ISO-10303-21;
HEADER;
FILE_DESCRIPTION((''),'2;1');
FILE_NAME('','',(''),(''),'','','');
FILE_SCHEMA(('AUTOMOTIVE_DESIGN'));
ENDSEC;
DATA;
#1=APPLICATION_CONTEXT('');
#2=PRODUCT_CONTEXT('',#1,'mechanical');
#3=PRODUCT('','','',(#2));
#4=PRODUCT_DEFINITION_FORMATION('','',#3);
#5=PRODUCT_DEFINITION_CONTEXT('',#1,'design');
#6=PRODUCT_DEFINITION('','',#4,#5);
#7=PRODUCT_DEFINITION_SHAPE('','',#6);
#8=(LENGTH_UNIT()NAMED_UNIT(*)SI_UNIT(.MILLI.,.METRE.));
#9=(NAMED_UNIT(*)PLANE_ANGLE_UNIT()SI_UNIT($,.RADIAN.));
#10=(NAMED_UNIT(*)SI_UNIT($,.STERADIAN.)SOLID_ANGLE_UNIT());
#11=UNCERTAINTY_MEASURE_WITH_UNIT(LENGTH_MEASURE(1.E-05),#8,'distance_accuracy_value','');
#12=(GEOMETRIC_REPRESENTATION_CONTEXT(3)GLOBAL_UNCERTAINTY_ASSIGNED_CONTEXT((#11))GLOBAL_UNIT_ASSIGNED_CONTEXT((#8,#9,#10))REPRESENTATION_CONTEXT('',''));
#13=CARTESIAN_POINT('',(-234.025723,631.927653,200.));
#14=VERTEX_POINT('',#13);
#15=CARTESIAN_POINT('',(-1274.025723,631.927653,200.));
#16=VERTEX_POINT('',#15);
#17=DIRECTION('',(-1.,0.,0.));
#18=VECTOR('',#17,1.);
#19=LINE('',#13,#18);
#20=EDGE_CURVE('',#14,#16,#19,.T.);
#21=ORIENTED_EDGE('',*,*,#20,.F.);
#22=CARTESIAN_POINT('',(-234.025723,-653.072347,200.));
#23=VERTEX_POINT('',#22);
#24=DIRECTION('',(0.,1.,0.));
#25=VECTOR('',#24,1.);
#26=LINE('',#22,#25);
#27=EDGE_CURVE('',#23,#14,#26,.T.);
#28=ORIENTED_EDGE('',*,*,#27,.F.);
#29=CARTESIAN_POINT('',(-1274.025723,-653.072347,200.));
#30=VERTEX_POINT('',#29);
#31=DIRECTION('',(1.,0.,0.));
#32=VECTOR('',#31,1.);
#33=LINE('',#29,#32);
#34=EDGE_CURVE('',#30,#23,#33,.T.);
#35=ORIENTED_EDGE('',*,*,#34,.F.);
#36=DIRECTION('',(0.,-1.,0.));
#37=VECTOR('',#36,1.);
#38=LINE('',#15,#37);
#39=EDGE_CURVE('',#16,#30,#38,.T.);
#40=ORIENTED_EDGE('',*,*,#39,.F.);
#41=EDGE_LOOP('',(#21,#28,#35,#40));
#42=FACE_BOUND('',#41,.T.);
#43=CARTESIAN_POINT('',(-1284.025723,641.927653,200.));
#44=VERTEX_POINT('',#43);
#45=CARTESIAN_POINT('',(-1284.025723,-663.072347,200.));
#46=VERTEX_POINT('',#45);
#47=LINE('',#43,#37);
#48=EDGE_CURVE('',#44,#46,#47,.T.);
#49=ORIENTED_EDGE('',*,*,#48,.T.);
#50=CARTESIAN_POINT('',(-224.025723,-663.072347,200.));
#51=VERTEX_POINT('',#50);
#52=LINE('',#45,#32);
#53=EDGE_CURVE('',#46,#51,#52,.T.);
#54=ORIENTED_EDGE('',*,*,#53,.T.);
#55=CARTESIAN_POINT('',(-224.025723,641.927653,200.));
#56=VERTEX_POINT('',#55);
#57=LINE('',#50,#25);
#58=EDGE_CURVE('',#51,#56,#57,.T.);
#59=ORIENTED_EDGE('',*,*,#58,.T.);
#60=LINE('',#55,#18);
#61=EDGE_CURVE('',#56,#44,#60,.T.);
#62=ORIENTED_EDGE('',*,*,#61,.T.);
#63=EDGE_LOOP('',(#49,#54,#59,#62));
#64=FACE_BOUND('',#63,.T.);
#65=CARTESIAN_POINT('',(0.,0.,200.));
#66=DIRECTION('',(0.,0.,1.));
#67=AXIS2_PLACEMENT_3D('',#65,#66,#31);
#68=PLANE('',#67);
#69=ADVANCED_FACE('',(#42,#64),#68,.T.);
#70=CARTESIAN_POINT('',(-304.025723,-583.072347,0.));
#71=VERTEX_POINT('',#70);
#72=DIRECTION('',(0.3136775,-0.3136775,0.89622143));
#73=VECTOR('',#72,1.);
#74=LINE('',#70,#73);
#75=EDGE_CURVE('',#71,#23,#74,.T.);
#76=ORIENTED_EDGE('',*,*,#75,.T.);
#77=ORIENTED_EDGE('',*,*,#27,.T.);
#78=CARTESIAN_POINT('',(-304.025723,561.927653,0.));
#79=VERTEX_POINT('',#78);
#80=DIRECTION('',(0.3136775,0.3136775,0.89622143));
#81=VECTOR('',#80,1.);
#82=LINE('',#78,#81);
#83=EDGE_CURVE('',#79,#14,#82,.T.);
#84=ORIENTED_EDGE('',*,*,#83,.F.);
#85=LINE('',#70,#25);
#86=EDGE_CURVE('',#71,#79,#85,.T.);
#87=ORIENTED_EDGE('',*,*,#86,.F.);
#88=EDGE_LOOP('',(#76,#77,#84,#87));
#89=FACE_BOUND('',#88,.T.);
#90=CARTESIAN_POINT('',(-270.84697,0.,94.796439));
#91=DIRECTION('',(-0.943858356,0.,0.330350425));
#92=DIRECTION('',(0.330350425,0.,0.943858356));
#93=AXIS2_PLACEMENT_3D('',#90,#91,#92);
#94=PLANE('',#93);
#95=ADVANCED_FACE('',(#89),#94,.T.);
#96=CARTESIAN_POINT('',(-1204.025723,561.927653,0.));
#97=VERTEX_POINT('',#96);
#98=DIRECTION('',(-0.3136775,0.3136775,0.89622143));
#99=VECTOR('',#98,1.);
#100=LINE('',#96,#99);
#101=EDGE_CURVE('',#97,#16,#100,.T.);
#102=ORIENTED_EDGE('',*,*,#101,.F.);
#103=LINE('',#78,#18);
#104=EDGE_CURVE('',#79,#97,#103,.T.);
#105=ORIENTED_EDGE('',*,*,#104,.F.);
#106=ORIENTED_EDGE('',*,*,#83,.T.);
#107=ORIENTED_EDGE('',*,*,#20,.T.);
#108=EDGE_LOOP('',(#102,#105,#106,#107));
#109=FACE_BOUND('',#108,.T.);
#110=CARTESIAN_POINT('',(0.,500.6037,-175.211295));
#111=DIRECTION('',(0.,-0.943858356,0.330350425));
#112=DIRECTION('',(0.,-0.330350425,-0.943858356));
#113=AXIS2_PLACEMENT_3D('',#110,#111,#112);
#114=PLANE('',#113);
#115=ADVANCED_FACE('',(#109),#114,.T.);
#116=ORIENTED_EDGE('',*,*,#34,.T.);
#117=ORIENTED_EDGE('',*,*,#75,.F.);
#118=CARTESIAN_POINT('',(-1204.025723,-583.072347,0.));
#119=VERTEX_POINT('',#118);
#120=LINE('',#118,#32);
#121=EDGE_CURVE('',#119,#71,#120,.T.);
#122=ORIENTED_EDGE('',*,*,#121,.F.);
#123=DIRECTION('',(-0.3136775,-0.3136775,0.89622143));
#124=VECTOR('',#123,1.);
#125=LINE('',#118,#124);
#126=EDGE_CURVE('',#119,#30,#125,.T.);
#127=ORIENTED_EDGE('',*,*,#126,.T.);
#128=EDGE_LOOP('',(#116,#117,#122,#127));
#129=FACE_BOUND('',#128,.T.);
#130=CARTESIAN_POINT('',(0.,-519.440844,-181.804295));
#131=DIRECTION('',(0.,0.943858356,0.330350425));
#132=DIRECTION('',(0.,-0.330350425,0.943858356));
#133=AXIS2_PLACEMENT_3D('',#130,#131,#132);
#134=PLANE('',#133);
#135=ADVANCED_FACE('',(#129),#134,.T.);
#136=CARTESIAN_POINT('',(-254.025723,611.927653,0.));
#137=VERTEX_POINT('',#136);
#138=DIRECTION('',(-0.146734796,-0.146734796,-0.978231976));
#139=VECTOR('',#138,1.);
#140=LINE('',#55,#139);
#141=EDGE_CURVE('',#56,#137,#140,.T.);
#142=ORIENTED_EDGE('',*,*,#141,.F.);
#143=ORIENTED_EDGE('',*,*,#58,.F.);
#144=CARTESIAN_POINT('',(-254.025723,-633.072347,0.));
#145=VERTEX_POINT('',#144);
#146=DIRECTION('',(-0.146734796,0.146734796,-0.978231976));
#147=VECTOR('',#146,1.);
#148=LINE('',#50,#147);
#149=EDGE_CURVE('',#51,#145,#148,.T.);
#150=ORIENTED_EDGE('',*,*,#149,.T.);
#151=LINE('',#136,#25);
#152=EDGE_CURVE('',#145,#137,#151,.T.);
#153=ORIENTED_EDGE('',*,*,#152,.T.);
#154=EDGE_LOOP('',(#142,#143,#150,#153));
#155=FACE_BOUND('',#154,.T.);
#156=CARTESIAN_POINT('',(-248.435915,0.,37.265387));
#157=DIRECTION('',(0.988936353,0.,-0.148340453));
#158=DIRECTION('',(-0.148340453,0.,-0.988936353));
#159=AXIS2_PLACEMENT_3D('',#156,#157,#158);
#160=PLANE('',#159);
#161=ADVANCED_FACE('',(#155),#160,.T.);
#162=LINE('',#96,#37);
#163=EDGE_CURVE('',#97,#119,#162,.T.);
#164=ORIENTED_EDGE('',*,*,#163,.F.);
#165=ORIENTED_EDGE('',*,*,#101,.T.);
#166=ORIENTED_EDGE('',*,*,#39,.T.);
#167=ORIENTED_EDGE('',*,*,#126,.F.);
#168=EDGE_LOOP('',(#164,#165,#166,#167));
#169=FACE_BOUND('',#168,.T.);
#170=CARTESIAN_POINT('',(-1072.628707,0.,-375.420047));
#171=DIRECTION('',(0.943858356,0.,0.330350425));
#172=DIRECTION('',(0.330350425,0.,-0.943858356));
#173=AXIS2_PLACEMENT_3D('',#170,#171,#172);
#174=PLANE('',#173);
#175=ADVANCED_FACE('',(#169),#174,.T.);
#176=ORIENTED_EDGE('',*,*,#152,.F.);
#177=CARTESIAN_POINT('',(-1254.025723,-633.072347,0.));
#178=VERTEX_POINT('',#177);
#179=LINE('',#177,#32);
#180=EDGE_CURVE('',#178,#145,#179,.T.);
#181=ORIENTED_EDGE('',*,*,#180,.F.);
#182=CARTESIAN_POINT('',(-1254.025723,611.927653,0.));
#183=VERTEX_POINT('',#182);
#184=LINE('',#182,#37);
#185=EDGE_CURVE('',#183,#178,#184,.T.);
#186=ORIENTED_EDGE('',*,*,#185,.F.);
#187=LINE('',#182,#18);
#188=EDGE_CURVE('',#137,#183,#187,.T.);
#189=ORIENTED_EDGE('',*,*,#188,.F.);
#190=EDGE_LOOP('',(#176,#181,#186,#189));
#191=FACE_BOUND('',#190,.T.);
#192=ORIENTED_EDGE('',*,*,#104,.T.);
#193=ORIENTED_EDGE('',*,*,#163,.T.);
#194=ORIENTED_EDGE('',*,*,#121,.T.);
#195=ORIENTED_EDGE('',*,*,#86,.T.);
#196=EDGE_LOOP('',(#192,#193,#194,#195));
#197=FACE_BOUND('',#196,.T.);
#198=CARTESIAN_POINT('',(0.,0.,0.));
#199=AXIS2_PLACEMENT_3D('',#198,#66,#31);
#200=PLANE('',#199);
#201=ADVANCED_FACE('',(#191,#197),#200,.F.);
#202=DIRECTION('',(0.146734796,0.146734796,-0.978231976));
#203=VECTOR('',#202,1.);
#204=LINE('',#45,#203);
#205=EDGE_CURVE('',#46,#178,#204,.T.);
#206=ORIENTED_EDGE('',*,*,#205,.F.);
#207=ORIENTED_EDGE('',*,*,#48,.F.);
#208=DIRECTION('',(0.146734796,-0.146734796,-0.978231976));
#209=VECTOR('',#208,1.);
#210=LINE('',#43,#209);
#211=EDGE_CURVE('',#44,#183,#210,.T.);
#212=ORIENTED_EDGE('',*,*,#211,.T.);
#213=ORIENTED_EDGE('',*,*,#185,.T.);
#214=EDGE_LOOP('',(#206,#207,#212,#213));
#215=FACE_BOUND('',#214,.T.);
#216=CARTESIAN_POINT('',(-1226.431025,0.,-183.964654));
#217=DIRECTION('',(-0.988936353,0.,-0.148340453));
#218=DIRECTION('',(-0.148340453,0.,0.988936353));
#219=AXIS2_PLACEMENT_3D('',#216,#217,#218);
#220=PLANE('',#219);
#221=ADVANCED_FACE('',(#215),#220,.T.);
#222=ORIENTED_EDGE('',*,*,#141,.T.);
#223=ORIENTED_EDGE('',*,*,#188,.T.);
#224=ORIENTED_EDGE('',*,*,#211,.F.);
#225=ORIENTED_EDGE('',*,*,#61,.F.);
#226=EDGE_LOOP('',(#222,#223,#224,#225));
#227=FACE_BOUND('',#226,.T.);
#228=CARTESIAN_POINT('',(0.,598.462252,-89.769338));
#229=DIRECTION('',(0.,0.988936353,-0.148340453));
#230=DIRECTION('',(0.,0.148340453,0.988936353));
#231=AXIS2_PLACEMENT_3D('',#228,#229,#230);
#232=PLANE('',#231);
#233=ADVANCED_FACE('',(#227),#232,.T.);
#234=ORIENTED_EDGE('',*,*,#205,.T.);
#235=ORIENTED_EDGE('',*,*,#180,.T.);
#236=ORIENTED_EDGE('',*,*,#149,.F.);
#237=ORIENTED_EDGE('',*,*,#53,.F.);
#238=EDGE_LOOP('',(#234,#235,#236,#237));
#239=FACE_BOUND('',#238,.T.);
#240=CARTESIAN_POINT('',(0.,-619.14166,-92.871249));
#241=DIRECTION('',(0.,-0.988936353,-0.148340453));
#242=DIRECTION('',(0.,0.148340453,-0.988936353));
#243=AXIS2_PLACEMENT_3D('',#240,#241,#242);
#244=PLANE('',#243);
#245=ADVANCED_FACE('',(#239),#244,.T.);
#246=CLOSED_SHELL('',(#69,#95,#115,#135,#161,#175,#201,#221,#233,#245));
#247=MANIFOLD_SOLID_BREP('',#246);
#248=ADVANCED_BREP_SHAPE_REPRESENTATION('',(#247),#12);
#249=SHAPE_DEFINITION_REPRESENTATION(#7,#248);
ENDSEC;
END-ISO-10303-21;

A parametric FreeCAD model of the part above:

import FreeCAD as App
import Part
import Sketcher

doc = App.newDocument("Part")
body = doc.addObject("PartDesign::Body", "Body")

sketch1 = body.newObject("Sketcher::SketchObject", "Sketch")
sketch1.AttachmentSupport = (doc.getObject("XY_Plane"), [""])
sketch1.MapMode = "FlatFace"
sketch1.AttachmentOffset = App.Placement(App.Vector(0, 0, 200), App.Rotation())
sketch1.addGeometry([
    Part.LineSegment(App.Vector(-224, -663, 0), App.Vector(-224, 642, 0)),
    Part.LineSegment(App.Vector(-224, 642, 0), App.Vector(-1284, 642, 0)),
    Part.LineSegment(App.Vector(-1284, 642, 0), App.Vector(-1284, -663, 0)),
    Part.LineSegment(App.Vector(-1284, -663, 0), App.Vector(-224, -663, 0)),
], False)
sketch1.addConstraint([
    Sketcher.Constraint("Coincident", 0, 2, 1, 1),
    Sketcher.Constraint("Coincident", 1, 2, 2, 1),
    Sketcher.Constraint("Coincident", 2, 2, 3, 1),
    Sketcher.Constraint("Coincident", 3, 2, 0, 1),
    Sketcher.Constraint("Vertical", 0),
    Sketcher.Constraint("Horizontal", 1),
    Sketcher.Constraint("Vertical", 2),
    Sketcher.Constraint("Horizontal", 3),
    Sketcher.Constraint("DistanceX", 1, 2, 1, 1, 1060.0),
    Sketcher.Constraint("DistanceY", 0, 1, 0, 2, 1305.0),
    Sketcher.Constraint("DistanceX", 0, 2, -1, 1, 224.025723),
    Sketcher.Constraint("DistanceY", -1, 1, 0, 2, 641.927653),
])

sketch2 = body.newObject("Sketcher::SketchObject", "Sketch001")
sketch2.AttachmentSupport = (doc.getObject("XY_Plane"), [""])
sketch2.MapMode = "FlatFace"
sketch2.addGeometry([
    Part.LineSegment(App.Vector(-254, 612, 0), App.Vector(-1254, 612, 0)),
    Part.LineSegment(App.Vector(-1254, 612, 0), App.Vector(-1254, -633, 0)),
    Part.LineSegment(App.Vector(-1254, -633, 0), App.Vector(-254, -633, 0)),
    Part.LineSegment(App.Vector(-254, -633, 0), App.Vector(-254, 612, 0)),
], False)
sketch2.addConstraint([
    Sketcher.Constraint("Coincident", 0, 2, 1, 1),
    Sketcher.Constraint("Coincident", 1, 2, 2, 1),
    Sketcher.Constraint("Coincident", 2, 2, 3, 1),
    Sketcher.Constraint("Coincident", 3, 2, 0, 1),
    Sketcher.Constraint("Horizontal", 0),
    Sketcher.Constraint("Vertical", 1),
    Sketcher.Constraint("Horizontal", 2),
    Sketcher.Constraint("Vertical", 3),
    Sketcher.Constraint("DistanceX", 0, 2, 0, 1, 1000.0),
    Sketcher.Constraint("DistanceY", 1, 2, 1, 1, 1245.0),
    Sketcher.Constraint("DistanceX", 0, 2, -1, 1, 1254.025723),
    Sketcher.Constraint("DistanceY", -1, 1, 0, 2, 611.927653),
])

additiveloft = body.newObject("PartDesign::AdditiveLoft", "AdditiveLoft")
additiveloft.Profile = sketch1
additiveloft.Sections = [sketch2]

sketch3 = body.newObject("Sketcher::SketchObject", "Sketch002")
sketch3.AttachmentSupport = (doc.getObject("XY_Plane"), [""])
sketch3.MapMode = "FlatFace"
sketch3.addGeometry([
    Part.LineSegment(App.Vector(-1204, -583, 0), App.Vector(-304, -583, 0)),
    Part.LineSegment(App.Vector(-304, -583, 0), App.Vector(-304, 562, 0)),
    Part.LineSegment(App.Vector(-304, 562, 0), App.Vector(-1204, 562, 0)),
    Part.LineSegment(App.Vector(-1204, 562, 0), App.Vector(-1204, -583, 0)),
], False)
sketch3.addConstraint([
    Sketcher.Constraint("Coincident", 0, 2, 1, 1),
    Sketcher.Constraint("Coincident", 1, 2, 2, 1),
    Sketcher.Constraint("Coincident", 2, 2, 3, 1),
    Sketcher.Constraint("Coincident", 3, 2, 0, 1),
    Sketcher.Constraint("Horizontal", 0),
    Sketcher.Constraint("Vertical", 1),
    Sketcher.Constraint("Horizontal", 2),
    Sketcher.Constraint("Vertical", 3),
    Sketcher.Constraint("DistanceX", 0, 1, 0, 2, 900.0),
    Sketcher.Constraint("DistanceY", 1, 1, 1, 2, 1145.0),
    Sketcher.Constraint("DistanceX", 0, 2, -1, 1, 304.025723),
    Sketcher.Constraint("DistanceY", 0, 2, -1, 1, 583.072347),
])

sketch4 = body.newObject("Sketcher::SketchObject", "Sketch003")
sketch4.AttachmentSupport = (doc.getObject("XY_Plane"), [""])
sketch4.MapMode = "FlatFace"
sketch4.AttachmentOffset = App.Placement(App.Vector(0, 0, 200), App.Rotation())
sketch4.addGeometry([
    Part.LineSegment(App.Vector(-1274, 632, 0), App.Vector(-1274, -653, 0)),
    Part.LineSegment(App.Vector(-1274, -653, 0), App.Vector(-234, -653, 0)),
    Part.LineSegment(App.Vector(-234, -653, 0), App.Vector(-234, 632, 0)),
    Part.LineSegment(App.Vector(-234, 632, 0), App.Vector(-1274, 632, 0)),
], False)
sketch4.addConstraint([
    Sketcher.Constraint("Coincident", 0, 2, 1, 1),
    Sketcher.Constraint("Coincident", 1, 2, 2, 1),
    Sketcher.Constraint("Coincident", 2, 2, 3, 1),
    Sketcher.Constraint("Coincident", 3, 2, 0, 1),
    Sketcher.Constraint("Vertical", 0),
    Sketcher.Constraint("Horizontal", 1),
    Sketcher.Constraint("Vertical", 2),
    Sketcher.Constraint("Horizontal", 3),
    Sketcher.Constraint("DistanceX", 1, 1, 1, 2, 1040.0),
    Sketcher.Constraint("DistanceY", 0, 2, 0, 1, 1285.0),
    Sketcher.Constraint("DistanceX", 0, 2, -1, 1, 1274.025723),
    Sketcher.Constraint("DistanceY", 0, 2, -1, 1, 653.072347),
])

subtractiveloft = body.newObject("PartDesign::SubtractiveLoft", "SubtractiveLoft")
subtractiveloft.Profile = sketch3
subtractiveloft.Sections = [sketch4]

doc.recompute()
